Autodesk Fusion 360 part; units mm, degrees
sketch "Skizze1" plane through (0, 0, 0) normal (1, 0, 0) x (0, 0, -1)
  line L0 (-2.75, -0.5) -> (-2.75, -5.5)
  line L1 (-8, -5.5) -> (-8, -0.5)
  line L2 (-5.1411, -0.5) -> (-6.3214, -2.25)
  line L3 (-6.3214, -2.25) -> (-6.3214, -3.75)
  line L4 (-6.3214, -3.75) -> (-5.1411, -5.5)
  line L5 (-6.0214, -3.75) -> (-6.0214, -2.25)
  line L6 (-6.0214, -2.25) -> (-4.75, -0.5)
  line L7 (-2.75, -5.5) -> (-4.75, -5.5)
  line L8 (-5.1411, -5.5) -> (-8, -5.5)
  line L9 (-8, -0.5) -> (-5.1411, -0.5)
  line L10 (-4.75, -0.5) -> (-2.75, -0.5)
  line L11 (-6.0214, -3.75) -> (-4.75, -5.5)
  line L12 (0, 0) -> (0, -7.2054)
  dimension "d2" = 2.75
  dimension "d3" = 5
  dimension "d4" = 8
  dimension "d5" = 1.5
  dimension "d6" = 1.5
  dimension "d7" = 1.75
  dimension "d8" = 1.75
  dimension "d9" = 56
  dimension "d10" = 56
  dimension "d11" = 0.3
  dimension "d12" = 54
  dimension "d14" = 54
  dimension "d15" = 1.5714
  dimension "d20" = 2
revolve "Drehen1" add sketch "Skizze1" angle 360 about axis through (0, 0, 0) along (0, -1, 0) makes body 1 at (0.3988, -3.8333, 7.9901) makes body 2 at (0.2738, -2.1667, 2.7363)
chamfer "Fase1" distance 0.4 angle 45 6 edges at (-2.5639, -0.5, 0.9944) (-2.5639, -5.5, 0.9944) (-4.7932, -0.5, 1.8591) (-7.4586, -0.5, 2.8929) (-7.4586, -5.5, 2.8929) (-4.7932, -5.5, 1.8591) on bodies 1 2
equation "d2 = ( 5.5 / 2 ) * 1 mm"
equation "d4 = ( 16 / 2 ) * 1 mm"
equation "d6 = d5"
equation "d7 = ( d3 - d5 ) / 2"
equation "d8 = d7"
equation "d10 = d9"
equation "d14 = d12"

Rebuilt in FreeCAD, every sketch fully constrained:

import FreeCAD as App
import Part
import Sketcher

V = App.Vector
Q = App.Units.Quantity


def edges_at(feature, points):
    """Names of the edges that pass closest to the given points."""
    edges = feature.Shape.Edges
    near = lambda p: min(range(len(edges)), key=lambda i: edges[i].distToShape(Part.Vertex(*p))[0])
    return sorted({f"Edge{near(p) + 1}" for p in points})

doc = App.newDocument("Part")
body = doc.addObject("PartDesign::Body", "Body")
body.AllowCompound = True

# Sketch on YZ plane
sketch1 = body.newObject("Sketcher::SketchObject", "Sketch")
sketch1.AttachmentSupport = (doc.getObject("YZ_Plane"), [""])
sketch1.MapMode = "FlatFace"
sketch1.addGeometry(Part.LineSegment(V(-5.5, 2.8, 0), V(-0.5, 2.8, 0)), False)
sketch1.addGeometry(Part.LineSegment(V(-0.5, 2.8, 0), V(-0.5, 4.8, 0)), False)
sketch1.addGeometry(Part.LineSegment(V(-0.5, 4.8, 0), V(-2.2, 6, 0)), False)
sketch1.addGeometry(Part.LineSegment(V(-2.2, 6, 0), V(-3.8, 6, 0)), False)
sketch1.addGeometry(Part.LineSegment(V(-3.8, 6, 0), V(-5.5, 4.8, 0)), False)
sketch1.addGeometry(Part.LineSegment(V(-5.5, 4.8, 0), V(-5.5, 2.8, 0)), False)
sketch1.addGeometry(Part.LineSegment(V(-0.5, 8, 0), V(-5.5, 8, 0)), False)
sketch1.addGeometry(Part.LineSegment(V(-5.5, 8, 0), V(-5.5, 5.1, 0)), False)
sketch1.addGeometry(Part.LineSegment(V(-5.5, 5.1, 0), V(-3.8, 6.3, 0)), False)
sketch1.addGeometry(Part.LineSegment(V(-3.8, 6.3, 0), V(-2.2, 6.3, 0)), False)
sketch1.addGeometry(Part.LineSegment(V(-2.2, 6.3, 0), V(-0.5, 5.1, 0)), False)
sketch1.addGeometry(Part.LineSegment(V(-0.5, 5.1, 0), V(-0.5, 8, 0)), False)
sketch1.addConstraint(Sketcher.Constraint("Coincident", 0, 2, 1, 1))
sketch1.addConstraint(Sketcher.Constraint("Coincident", 1, 2, 2, 1))
sketch1.addConstraint(Sketcher.Constraint("Coincident", 2, 2, 3, 1))
sketch1.addConstraint(Sketcher.Constraint("Coincident", 3, 2, 4, 1))
sketch1.addConstraint(Sketcher.Constraint("Coincident", 4, 2, 5, 1))
sketch1.addConstraint(Sketcher.Constraint("Coincident", 5, 2, 0, 1))
sketch1.addConstraint(Sketcher.Constraint("Coincident", 6, 2, 7, 1))
sketch1.addConstraint(Sketcher.Constraint("Coincident", 7, 2, 8, 1))
sketch1.addConstraint(Sketcher.Constraint("Coincident", 8, 2, 9, 1))
sketch1.addConstraint(Sketcher.Constraint("Coincident", 9, 2, 10, 1))
sketch1.addConstraint(Sketcher.Constraint("Coincident", 10, 2, 11, 1))
sketch1.addConstraint(Sketcher.Constraint("Coincident", 11, 2, 6, 1))
sketch1.addConstraint(Sketcher.Constraint("Horizontal", 0))
sketch1.addConstraint(Sketcher.Constraint("Vertical", 1))
sketch1.addConstraint(Sketcher.Constraint("Horizontal", 3))
sketch1.addConstraint(Sketcher.Constraint("Vertical", 5))
sketch1.addConstraint(Sketcher.Constraint("Horizontal", 6))
sketch1.addConstraint(Sketcher.Constraint("Vertical", 7))
sketch1.addConstraint(Sketcher.Constraint("Horizontal", 9))
sketch1.addConstraint(Sketcher.Constraint("Vertical", 11))
sketch1.addConstraint(Sketcher.Constraint("Horizontal", 1, 2, 4, 2))
sketch1.addConstraint(Sketcher.Constraint("Horizontal", 7, 2, 10, 2))
sketch1.addConstraint(Sketcher.Constraint("Vertical", 5, 2, 6, 2))
sketch1.addConstraint(Sketcher.Constraint("Vertical", 3, 2, 8, 2))
sketch1.addConstraint(Sketcher.Constraint("Vertical", 2, 2, 9, 2))
sketch1.addConstraint(Sketcher.Constraint("Vertical", 1, 2, 10, 2))
sketch1.addConstraint(Sketcher.Constraint("Equal", 2, 4))
sketch1.addConstraint(Sketcher.Constraint("DistanceX", 0, 1, 0, 2, 5.0))
sketch1.addConstraint(Sketcher.Constraint("DistanceY", 1, 1, 1, 2, 2.0))
sketch1.addConstraint(Sketcher.Constraint("DistanceX", 3, 2, 3, 1, 1.5))
sketch1.addConstraint(Sketcher.Constraint("DistanceY", -1, 1, 6, 2, 8.0))
sketch1.addConstraint(Sketcher.Constraint("DistanceY", 3, 2, 8, 2, 0.3))
sketch1.addConstraint(Sketcher.Constraint("DistanceY", -1, 1, 0, 2, 2.75))
sketch1.addConstraint(Sketcher.Constraint("Angle", 2, Q("144.001 deg")))
sketch1.addConstraint(Sketcher.Constraint("DistanceX", 0, 2, -1, 1, 0.5))
sketch1.addConstraint(Sketcher.Constraint("DistanceY", 7, 2, 7, 1, 2.859))
revolution = body.newObject("PartDesign::Revolution", "Revolution")
revolution.Profile = sketch1
revolution.ReferenceAxis = (sketch1, ["H_Axis"])
revolution.Angle = 360
doc.recompute()

chamfer = body.newObject("PartDesign::Chamfer", "Chamfer")
chamfer.Base = (revolution, edges_at(revolution, [
    (-2.564, -0.5, 0.994),
    (-2.564, -5.5, 0.994),
    (-4.793, -0.5, 1.859),
    (-7.459, -0.5, 2.893),
    (-7.459, -5.5, 2.893),
    (-4.793, -5.5, 1.859),
]))
chamfer.Size = 0.4

doc.recompute()
